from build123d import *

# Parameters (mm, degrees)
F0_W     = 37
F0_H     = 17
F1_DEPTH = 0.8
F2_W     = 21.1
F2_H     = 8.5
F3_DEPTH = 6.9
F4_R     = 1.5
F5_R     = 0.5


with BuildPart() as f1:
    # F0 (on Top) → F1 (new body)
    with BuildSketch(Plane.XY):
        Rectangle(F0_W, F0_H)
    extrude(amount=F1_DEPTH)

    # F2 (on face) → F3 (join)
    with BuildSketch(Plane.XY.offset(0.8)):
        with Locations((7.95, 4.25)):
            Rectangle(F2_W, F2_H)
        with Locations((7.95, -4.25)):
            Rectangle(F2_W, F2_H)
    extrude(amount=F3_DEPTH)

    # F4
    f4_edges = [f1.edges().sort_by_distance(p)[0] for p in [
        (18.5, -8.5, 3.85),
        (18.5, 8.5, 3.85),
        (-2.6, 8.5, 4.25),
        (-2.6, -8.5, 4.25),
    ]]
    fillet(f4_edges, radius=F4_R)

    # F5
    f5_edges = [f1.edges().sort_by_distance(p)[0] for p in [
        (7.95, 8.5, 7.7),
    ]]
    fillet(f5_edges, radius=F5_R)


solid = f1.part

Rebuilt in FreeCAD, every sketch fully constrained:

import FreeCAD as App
import Part
import Sketcher


def edges_at(feature, points):
    """Names of the edges that pass closest to the given points."""
    edges = feature.Shape.Edges
    near = lambda p: min(range(len(edges)), key=lambda i: edges[i].distToShape(Part.Vertex(*p))[0])
    return sorted({f"Edge{near(p) + 1}" for p in points})


def add_polygon(sketch, points):
    """Adds a closed chain of lines whose ends are joined by coincident constraints."""
    first, n = sketch.GeometryCount, len(points)
    for a, b in zip(points, points[1:] + points[:1]):
        sketch.addGeometry(Part.LineSegment(App.Vector(*a, 0), App.Vector(*b, 0)), False)
    for i in range(n):
        sketch.addConstraint(Sketcher.Constraint("Coincident", first + i, 2, first + (i + 1) % n, 1))

doc = App.newDocument("Part")
body = doc.addObject("PartDesign::Body", "Body")

sketch1 = doc.addObject("Sketcher::SketchObject", "Sketch")
body.addObject(sketch1)
sketch1.AttachmentSupport = (doc.XY_Plane, [""])
sketch1.MapMode = "FlatFace"
add_polygon(sketch1, [(-18, 8), (-18, -8), (18, -8), (18, 8)])
sketch1.addConstraint(Sketcher.Constraint("Vertical", 0))
sketch1.addConstraint(Sketcher.Constraint("Horizontal", 1))
sketch1.addConstraint(Sketcher.Constraint("Vertical", 2))
sketch1.addConstraint(Sketcher.Constraint("Horizontal", 3))
sketch1.addConstraint(Sketcher.Constraint("Symmetric", 0, 2, 2, 2, -1, 1))
sketch1.addConstraint(Sketcher.Constraint("DistanceX", 1, 1, 1, 2, 37.0))
sketch1.addConstraint(Sketcher.Constraint("DistanceY", 0, 2, 0, 1, 17.0))
pad1 = doc.addObject("PartDesign::Pad", "Pad")
body.addObject(pad1)
pad1.Profile = sketch1
pad1.Length = 0.8

sketch2 = doc.addObject("Sketcher::SketchObject", "Sketch001")
body.addObject(sketch2)
sketch2.AttachmentSupport = (doc.XY_Plane, [""])
sketch2.MapMode = "FlatFace"
sketch2.AttachmentOffset = App.Placement(App.Vector(0, 0, 0.8), App.Rotation())
add_polygon(sketch2, [(-3, 8), (-3, -8), (18, -8), (18, 8)])
sketch2.addConstraint(Sketcher.Constraint("Vertical", 0))
sketch2.addConstraint(Sketcher.Constraint("Horizontal", 1))
sketch2.addConstraint(Sketcher.Constraint("Vertical", 2))
sketch2.addConstraint(Sketcher.Constraint("Horizontal", 3))
sketch2.addConstraint(Sketcher.Constraint("DistanceY", 0, 2, 0, 1, 17.0))
sketch2.addConstraint(Sketcher.Constraint("DistanceX", 1, 1, 1, 2, 21.1))
sketch2.addConstraint(Sketcher.Constraint("DistanceX", 0, 2, -1, 1, 2.6))
sketch2.addConstraint(Sketcher.Constraint("DistanceY", 0, 2, -1, 1, 8.5))
pad2 = doc.addObject("PartDesign::Pad", "Pad001")
body.addObject(pad2)
pad2.Profile = sketch2
pad2.Length = 6.9
doc.recompute()

fillet = doc.addObject("PartDesign::Fillet", "Fillet")
body.addObject(fillet)
fillet.Base = (pad2, edges_at(pad2, [
    (18.5, -8.5, 3.85),
    (18.5, 8.5, 3.85),
    (-2.6, 8.5, 4.25),
    (-2.6, -8.5, 4.25),
]))
fillet.Radius = 1.5
doc.recompute()

fillet2 = doc.addObject("PartDesign::Fillet", "Fillet001")
body.addObject(fillet2)
fillet2.Base = (fillet, edges_at(fillet, [(7.95, 8.5, 7.7)]))
fillet2.Radius = 0.5

doc.recompute()
